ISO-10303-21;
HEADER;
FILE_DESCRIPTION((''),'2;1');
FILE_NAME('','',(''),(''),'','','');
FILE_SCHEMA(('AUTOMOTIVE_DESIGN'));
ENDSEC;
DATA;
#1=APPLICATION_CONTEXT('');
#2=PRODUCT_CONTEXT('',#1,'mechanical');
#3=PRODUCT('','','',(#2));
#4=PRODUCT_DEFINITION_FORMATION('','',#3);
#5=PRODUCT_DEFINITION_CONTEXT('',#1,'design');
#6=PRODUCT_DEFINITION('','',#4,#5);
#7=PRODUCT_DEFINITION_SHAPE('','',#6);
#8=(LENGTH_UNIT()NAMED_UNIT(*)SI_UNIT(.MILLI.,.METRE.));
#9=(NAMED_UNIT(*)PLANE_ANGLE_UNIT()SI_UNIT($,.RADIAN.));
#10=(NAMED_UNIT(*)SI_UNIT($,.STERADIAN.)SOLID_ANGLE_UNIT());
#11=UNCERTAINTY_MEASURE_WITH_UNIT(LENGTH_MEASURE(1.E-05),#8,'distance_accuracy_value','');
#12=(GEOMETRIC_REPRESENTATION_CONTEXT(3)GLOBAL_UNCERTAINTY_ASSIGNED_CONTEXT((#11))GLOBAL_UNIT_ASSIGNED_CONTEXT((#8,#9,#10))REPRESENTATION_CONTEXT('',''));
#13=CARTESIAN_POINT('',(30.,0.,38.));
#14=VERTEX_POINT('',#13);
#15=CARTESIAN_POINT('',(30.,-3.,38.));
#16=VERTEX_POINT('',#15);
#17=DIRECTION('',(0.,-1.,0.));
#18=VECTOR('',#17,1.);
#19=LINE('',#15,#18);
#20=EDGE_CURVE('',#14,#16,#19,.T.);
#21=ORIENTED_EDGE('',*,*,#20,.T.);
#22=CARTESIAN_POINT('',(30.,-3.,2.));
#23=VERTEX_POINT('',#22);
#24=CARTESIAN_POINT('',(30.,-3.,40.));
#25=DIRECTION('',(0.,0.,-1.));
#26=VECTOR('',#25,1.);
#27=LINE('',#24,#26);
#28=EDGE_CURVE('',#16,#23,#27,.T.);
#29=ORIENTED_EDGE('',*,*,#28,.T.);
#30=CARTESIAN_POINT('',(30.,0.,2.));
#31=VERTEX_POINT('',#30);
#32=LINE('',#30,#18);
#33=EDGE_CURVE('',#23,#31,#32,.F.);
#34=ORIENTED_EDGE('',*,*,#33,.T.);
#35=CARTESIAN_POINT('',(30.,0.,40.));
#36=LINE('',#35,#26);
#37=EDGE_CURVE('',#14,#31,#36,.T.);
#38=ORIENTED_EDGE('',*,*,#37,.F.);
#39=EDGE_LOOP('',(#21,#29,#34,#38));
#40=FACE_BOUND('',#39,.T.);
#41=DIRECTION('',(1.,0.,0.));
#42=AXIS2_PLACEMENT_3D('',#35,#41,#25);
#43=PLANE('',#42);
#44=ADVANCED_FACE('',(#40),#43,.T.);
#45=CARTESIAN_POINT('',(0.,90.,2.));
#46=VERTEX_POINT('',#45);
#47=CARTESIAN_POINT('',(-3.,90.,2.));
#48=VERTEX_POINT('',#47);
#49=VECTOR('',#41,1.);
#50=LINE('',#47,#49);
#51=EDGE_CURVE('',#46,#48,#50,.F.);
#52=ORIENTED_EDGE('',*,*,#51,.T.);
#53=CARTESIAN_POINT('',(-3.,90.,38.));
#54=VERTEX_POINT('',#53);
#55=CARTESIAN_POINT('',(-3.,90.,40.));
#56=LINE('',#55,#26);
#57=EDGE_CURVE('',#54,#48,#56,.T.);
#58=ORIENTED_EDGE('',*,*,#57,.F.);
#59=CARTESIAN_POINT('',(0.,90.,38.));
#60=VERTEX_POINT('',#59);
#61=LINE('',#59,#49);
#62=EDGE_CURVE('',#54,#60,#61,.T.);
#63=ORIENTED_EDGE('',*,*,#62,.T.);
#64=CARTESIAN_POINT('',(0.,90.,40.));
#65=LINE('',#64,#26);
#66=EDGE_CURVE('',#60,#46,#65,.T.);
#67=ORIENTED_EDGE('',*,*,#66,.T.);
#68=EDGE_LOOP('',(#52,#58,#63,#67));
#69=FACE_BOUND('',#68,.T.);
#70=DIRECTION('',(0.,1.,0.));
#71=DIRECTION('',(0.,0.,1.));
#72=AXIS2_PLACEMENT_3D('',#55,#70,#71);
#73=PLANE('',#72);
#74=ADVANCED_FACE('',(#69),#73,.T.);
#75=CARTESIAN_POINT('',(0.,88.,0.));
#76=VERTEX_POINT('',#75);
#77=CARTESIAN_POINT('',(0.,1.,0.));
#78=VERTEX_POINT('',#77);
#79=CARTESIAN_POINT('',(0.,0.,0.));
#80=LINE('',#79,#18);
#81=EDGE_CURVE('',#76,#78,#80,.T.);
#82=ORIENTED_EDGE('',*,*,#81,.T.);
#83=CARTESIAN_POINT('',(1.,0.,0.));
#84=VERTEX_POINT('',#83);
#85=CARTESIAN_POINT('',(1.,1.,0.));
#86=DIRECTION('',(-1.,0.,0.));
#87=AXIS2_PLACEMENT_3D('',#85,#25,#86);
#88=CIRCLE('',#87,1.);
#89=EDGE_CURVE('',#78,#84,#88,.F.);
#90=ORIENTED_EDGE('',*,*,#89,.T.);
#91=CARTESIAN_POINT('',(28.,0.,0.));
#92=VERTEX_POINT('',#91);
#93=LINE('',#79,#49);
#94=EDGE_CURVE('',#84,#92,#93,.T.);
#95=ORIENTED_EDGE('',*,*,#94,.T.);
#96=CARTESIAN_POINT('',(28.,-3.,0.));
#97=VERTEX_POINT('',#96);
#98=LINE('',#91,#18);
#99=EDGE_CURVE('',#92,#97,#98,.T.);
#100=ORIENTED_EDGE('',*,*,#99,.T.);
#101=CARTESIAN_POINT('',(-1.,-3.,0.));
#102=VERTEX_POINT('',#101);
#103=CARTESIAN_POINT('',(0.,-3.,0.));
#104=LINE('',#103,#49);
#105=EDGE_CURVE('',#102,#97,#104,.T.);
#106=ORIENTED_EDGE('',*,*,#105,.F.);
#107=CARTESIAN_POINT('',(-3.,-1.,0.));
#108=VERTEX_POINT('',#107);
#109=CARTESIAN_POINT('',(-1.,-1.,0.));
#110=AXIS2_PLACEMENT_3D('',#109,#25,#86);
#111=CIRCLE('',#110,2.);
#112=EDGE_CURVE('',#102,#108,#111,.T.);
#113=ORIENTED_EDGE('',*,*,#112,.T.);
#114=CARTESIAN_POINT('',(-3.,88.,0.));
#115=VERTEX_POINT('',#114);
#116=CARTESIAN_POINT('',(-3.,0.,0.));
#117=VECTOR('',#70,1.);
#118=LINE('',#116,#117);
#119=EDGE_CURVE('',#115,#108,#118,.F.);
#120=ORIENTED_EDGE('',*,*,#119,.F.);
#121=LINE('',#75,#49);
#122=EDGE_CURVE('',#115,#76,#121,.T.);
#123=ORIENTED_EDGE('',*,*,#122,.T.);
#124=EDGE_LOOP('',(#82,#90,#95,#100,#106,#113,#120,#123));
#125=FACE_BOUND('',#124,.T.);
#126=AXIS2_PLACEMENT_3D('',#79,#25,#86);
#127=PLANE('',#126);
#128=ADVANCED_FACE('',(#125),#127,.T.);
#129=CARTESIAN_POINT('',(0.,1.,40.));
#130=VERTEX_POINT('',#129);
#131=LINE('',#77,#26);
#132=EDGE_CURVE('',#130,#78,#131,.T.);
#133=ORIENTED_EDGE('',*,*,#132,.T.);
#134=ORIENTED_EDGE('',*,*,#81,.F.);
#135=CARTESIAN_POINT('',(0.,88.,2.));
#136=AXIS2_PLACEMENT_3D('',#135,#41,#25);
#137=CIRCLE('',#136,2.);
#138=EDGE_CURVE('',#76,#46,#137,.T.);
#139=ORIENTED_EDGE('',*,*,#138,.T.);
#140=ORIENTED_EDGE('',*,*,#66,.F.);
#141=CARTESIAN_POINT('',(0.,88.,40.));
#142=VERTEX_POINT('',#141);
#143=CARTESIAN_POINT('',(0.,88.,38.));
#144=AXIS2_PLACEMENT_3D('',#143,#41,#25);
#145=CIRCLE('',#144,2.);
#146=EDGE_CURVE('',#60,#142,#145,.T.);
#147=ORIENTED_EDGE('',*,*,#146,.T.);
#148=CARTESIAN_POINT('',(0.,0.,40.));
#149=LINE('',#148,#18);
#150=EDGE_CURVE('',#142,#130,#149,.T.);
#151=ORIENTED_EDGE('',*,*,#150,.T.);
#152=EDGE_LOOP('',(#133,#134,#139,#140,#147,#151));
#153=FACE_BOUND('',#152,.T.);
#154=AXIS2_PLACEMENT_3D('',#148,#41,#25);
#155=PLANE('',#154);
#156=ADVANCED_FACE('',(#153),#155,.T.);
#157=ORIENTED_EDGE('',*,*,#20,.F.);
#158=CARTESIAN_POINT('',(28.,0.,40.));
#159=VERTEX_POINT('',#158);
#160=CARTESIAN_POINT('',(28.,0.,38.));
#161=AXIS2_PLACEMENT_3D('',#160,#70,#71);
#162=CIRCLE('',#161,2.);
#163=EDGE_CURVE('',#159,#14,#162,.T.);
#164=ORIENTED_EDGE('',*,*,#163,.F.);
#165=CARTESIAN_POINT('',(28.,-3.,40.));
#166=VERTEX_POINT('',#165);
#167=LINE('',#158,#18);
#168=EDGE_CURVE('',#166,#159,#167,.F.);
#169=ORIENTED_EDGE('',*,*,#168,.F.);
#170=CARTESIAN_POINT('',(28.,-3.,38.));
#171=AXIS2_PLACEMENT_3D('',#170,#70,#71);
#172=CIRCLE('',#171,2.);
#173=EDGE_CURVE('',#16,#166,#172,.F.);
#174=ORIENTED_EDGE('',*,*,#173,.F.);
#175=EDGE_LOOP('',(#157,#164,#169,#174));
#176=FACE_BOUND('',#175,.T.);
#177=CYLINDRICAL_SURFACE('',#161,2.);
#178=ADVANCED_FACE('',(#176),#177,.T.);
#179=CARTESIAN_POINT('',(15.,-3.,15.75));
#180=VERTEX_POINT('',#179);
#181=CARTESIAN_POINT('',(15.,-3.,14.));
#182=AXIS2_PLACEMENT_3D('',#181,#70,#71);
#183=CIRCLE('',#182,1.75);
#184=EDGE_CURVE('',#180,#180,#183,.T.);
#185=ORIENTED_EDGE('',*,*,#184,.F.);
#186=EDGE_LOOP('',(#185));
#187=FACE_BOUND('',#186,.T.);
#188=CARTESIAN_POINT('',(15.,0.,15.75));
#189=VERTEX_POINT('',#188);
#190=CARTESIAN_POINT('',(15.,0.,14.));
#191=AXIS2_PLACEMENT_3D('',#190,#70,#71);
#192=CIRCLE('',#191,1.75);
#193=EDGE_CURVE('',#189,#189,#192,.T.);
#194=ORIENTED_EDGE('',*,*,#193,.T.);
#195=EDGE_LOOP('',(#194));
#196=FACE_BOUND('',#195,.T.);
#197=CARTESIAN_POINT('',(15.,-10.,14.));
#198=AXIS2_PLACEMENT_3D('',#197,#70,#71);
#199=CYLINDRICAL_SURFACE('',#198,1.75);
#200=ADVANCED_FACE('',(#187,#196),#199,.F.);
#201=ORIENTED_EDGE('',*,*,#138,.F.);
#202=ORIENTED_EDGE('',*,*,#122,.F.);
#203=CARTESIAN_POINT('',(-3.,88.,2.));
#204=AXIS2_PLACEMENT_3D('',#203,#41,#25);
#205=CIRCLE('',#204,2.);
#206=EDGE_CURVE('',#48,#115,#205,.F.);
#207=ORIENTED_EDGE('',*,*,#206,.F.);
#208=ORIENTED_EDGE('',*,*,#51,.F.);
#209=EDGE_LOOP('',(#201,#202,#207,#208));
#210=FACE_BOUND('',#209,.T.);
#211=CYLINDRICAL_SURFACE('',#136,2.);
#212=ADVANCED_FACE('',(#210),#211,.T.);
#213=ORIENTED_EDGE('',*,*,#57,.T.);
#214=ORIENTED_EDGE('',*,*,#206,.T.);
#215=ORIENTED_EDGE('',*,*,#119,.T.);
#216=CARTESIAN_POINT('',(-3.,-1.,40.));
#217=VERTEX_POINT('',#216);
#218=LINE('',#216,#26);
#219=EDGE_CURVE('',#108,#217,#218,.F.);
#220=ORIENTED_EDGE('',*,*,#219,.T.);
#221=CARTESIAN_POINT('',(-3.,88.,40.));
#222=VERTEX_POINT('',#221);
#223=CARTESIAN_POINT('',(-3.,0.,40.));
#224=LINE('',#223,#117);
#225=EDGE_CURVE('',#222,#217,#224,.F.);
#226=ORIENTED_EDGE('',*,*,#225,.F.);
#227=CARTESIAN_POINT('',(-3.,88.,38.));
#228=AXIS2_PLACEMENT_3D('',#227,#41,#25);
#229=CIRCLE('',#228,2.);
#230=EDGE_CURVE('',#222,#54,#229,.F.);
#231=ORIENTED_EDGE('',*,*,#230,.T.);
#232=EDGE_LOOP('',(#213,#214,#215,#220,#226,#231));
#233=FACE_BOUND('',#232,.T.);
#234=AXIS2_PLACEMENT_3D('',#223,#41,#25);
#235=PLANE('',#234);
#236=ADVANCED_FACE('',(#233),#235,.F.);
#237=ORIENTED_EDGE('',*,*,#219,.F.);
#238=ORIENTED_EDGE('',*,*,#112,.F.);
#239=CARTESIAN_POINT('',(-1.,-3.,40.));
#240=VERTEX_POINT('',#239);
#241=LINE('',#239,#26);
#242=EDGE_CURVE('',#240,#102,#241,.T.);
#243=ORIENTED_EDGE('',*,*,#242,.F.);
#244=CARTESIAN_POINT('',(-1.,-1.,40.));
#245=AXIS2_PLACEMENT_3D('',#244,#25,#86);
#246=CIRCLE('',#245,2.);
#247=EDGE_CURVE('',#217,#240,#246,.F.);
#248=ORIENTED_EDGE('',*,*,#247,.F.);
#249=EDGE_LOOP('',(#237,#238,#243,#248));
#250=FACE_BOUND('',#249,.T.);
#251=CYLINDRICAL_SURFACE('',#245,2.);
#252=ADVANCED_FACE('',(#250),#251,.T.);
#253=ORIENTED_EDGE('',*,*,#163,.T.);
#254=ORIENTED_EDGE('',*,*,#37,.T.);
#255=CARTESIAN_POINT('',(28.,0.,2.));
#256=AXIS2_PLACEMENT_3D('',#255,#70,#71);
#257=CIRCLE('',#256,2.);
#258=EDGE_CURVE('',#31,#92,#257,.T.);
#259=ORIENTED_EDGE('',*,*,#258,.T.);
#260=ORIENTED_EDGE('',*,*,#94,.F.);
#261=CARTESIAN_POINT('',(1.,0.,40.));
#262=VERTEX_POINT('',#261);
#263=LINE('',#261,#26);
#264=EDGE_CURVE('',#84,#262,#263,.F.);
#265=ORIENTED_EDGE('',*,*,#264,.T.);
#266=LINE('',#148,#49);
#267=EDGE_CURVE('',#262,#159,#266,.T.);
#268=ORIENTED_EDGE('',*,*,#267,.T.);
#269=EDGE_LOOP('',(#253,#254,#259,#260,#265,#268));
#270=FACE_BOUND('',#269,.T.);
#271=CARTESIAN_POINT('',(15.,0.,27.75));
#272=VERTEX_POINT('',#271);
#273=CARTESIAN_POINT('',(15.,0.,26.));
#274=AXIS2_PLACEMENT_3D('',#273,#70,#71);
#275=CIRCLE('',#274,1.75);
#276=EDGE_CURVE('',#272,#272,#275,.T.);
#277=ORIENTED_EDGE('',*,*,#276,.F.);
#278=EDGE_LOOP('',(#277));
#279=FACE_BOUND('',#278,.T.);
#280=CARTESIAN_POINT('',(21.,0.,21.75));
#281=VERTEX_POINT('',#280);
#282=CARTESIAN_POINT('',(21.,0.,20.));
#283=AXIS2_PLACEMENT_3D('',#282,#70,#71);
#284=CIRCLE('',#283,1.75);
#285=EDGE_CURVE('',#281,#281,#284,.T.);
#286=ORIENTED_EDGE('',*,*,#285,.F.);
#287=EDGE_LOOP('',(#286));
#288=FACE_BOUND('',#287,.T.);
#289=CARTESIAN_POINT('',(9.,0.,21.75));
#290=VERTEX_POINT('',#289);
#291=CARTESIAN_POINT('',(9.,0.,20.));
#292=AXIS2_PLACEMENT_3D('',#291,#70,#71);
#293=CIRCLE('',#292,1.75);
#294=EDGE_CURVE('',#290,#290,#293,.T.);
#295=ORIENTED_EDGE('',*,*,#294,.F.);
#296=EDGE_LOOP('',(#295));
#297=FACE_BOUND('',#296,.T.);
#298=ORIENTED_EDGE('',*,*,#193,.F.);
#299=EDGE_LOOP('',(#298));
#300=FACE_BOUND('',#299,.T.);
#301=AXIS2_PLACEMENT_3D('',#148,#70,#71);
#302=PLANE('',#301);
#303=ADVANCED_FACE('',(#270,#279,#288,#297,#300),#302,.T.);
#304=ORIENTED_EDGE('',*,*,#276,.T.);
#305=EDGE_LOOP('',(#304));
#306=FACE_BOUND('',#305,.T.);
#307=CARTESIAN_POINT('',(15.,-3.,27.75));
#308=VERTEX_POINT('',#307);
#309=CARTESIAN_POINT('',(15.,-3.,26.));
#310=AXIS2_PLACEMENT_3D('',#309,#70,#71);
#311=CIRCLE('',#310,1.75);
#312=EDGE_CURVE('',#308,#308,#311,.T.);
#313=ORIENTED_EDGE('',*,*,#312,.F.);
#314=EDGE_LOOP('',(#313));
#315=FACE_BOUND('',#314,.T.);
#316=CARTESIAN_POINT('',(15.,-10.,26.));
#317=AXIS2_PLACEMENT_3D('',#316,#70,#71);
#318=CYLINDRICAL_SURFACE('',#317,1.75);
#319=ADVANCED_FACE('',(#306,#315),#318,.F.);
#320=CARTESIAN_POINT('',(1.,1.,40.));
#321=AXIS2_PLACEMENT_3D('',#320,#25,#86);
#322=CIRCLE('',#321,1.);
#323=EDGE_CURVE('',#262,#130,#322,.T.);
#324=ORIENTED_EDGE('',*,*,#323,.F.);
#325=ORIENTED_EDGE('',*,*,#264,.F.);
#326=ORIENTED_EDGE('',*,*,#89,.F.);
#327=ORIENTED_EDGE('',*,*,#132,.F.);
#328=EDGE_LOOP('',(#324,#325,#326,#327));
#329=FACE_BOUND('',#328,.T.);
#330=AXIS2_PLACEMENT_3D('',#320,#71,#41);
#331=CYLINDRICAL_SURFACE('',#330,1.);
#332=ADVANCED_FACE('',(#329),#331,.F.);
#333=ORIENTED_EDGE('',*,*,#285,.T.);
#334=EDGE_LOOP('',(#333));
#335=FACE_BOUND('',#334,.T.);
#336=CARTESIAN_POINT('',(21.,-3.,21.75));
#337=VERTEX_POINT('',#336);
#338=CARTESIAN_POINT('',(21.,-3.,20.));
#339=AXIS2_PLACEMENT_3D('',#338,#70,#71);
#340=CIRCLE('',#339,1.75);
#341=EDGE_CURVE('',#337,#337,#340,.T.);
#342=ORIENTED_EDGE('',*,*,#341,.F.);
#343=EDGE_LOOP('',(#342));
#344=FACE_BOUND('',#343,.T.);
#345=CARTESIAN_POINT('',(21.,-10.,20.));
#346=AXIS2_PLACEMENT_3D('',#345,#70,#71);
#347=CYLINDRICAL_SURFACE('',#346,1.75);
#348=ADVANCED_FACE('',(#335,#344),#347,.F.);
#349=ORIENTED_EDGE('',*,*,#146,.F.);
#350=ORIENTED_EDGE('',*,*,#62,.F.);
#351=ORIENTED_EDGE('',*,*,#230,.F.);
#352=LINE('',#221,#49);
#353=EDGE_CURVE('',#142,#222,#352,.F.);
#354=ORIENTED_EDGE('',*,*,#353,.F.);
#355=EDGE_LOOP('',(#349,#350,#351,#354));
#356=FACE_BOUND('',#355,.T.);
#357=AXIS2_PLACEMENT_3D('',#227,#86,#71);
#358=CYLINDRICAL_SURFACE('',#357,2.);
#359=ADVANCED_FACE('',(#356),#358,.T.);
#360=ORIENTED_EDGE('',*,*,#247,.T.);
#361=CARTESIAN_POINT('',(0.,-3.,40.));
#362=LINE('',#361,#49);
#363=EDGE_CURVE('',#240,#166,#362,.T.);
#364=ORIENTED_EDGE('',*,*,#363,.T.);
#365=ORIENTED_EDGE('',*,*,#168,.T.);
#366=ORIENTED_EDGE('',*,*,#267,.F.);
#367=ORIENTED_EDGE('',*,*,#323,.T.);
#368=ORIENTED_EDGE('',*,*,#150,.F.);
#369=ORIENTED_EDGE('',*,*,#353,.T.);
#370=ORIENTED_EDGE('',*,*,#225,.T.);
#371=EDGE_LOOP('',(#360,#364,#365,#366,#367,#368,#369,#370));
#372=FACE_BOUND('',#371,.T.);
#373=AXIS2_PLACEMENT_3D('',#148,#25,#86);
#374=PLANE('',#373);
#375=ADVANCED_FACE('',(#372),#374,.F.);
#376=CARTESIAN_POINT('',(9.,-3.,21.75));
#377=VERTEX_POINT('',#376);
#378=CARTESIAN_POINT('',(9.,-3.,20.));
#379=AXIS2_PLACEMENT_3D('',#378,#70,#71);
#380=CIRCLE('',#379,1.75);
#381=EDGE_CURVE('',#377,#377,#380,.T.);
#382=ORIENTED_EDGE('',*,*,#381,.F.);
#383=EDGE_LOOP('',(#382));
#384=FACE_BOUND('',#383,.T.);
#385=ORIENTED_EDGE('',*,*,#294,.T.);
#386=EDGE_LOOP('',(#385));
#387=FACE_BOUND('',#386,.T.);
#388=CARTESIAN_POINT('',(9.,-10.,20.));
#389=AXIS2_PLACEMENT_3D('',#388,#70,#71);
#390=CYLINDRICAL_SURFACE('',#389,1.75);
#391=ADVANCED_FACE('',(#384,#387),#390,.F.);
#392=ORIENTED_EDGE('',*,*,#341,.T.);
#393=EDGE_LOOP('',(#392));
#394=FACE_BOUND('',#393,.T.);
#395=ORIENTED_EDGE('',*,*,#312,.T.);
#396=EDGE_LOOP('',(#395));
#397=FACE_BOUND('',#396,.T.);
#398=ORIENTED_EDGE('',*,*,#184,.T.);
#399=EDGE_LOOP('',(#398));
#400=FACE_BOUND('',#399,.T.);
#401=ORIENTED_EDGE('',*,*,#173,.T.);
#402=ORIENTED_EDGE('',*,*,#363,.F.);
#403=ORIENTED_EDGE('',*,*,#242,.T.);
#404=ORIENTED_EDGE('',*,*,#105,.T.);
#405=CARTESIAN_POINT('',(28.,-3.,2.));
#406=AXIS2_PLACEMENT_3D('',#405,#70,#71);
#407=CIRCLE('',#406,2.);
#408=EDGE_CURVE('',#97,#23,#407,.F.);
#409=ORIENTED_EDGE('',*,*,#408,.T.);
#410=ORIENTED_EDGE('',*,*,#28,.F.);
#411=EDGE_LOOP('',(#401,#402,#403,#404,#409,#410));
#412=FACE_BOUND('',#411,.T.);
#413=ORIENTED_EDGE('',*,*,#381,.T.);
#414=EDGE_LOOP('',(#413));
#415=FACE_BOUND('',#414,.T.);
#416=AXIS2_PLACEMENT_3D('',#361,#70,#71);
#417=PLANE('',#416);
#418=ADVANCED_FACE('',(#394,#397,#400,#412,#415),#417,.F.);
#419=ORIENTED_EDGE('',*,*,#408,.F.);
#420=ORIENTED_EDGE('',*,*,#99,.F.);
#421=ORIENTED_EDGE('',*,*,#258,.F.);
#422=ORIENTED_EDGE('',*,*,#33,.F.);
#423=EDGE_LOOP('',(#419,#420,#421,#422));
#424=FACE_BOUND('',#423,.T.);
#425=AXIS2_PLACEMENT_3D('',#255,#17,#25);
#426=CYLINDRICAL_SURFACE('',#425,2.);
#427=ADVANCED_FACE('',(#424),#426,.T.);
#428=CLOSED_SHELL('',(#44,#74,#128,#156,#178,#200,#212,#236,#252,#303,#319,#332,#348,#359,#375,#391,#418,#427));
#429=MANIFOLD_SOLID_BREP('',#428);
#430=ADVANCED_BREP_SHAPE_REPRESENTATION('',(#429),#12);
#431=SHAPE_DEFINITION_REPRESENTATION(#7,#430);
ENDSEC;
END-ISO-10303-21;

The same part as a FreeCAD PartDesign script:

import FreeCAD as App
import Part
import Sketcher
from FreeCAD import Vector
Q = App.Units.Quantity


def edges_at(feature, points):
    """Names of the edges that pass closest to the given points."""
    edges = feature.Shape.Edges
    near = lambda p: min(range(len(edges)), key=lambda i: edges[i].distToShape(Part.Vertex(*p))[0])
    return sorted({f"Edge{near(p) + 1}" for p in points})


def add_polygon(sketch, points):
    """Adds a closed chain of lines whose ends are joined by coincident constraints."""
    first, n = sketch.GeometryCount, len(points)
    for a, b in zip(points, points[1:] + points[:1]):
        sketch.addGeometry(Part.LineSegment(App.Vector(*a, 0), App.Vector(*b, 0)), False)
    for i in range(n):
        sketch.addConstraint(Sketcher.Constraint("Coincident", first + i, 2, first + (i + 1) % n, 1))

doc = App.newDocument("Part")
params = doc.addObject("Spreadsheet::Sheet", "Params")
for row, (alias, value) in enumerate([
    ("sketch1_width", "30 mm"),
    ("sketch1_width2", "3 mm"),
    ("sketch1_height", "90 mm"),
    ("pad1_length", "40 mm"),
    ("fillet_radius", "1 mm"),
    ("fillet2_radius", "2 mm"),
    ("fillet3_radius", "2 mm"),
    ("fillet4_radius", "2 mm"),
    ("fillet5_radius", "2 mm"),
    ("fillet6_radius", "2 mm"),
    ("sketch2_diameter", "3.5 mm"),
    ("pocket1_length", "10 mm"),
], start=1):
    params.set(f"A{row}", alias)
    params.set(f"B{row}", "=" + value)
    params.setAlias(f"B{row}", alias)

body = doc.addObject("PartDesign::Body", "Body")

sketch1 = doc.addObject("Sketcher::SketchObject", "Sketch")
body.addObject(sketch1)
sketch1.AttachmentSupport = (doc.XY_Plane, [""])
sketch1.MapMode = "FlatFace"
add_polygon(sketch1, [(30, 0), (0, 0), (0, 90), (-3, 90), (-3, -3), (30, -3)])
sketch1.addConstraint(Sketcher.Constraint("Horizontal", 0))
sketch1.addConstraint(Sketcher.Constraint("Vertical", 1))
sketch1.addConstraint(Sketcher.Constraint("Horizontal", 2))
sketch1.addConstraint(Sketcher.Constraint("Vertical", 3))
sketch1.addConstraint(Sketcher.Constraint("Horizontal", 4))
sketch1.addConstraint(Sketcher.Constraint("Vertical", 5))
sketch1.addConstraint(Sketcher.Constraint("Coincident", 0, 2, -1, 1))
sketch1.addConstraint(Sketcher.Constraint("Equal", 2, 5))
sketch1.addConstraint(Sketcher.Constraint("DistanceX", 0, 2, 0, 1, Q("30 mm")))
sketch1.addConstraint(Sketcher.Constraint("DistanceX", 2, 2, 2, 1, Q("3 mm")))
sketch1.addConstraint(Sketcher.Constraint("DistanceY", 1, 1, 1, 2, Q("90 mm")))
sketch1.setExpression("Constraints[14]", "Params.sketch1_width")
sketch1.setExpression("Constraints[15]", "Params.sketch1_width2")
sketch1.setExpression("Constraints[16]", "Params.sketch1_height")
pad1 = doc.addObject("PartDesign::Pad", "Pad")
body.addObject(pad1)
pad1.Profile = sketch1
pad1.setExpression("Length", "Params.pad1_length")
doc.recompute()

fillet = doc.addObject("PartDesign::Fillet", "Fillet")
body.addObject(fillet)
fillet.Base = (pad1, edges_at(pad1, [(0, 0, 20)]))
fillet.setExpression("Radius", "Params.fillet_radius")
doc.recompute()

fillet2 = doc.addObject("PartDesign::Fillet", "Fillet001")
body.addObject(fillet2)
fillet2.Base = (fillet, edges_at(fillet, [(-3, -3, 20)]))
fillet2.setExpression("Radius", "Params.fillet2_radius")
doc.recompute()

fillet3 = doc.addObject("PartDesign::Fillet", "Fillet002")
body.addObject(fillet3)
fillet3.Base = (fillet2, edges_at(fillet2, [(-1.5, 90, 40)]))
fillet3.setExpression("Radius", "Params.fillet3_radius")
doc.recompute()

fillet4 = doc.addObject("PartDesign::Fillet", "Fillet003")
body.addObject(fillet4)
fillet4.Base = (fillet3, edges_at(fillet3, [(-1.5, 90, 0)]))
fillet4.setExpression("Radius", "Params.fillet4_radius")
doc.recompute()

fillet5 = doc.addObject("PartDesign::Fillet", "Fillet004")
body.addObject(fillet5)
fillet5.Base = (fillet4, edges_at(fillet4, [(30, -1.5, 40)]))
fillet5.setExpression("Radius", "Params.fillet5_radius")
doc.recompute()

fillet6 = doc.addObject("PartDesign::Fillet", "Fillet005")
body.addObject(fillet6)
fillet6.Base = (fillet5, edges_at(fillet5, [(30, -1.5, 0)]))
fillet6.setExpression("Radius", "Params.fillet6_radius")

sketch2 = doc.addObject("Sketcher::SketchObject", "Sketch001")
body.addObject(sketch2)
sketch2.AttachmentSupport = (doc.XZ_Plane, [""])
sketch2.MapMode = "FlatFace"
sketch2.addGeometry(Part.Circle(Vector(15, 14, 0), Vector(0, 0, 1), 1.75), False)
sketch2.addGeometry(Part.Circle(Vector(15, 26, 0), Vector(0, 0, 1), 1.75), False)
sketch2.addGeometry(Part.Circle(Vector(21, 20, 0), Vector(0, 0, 1), 1.75), False)
sketch2.addGeometry(Part.Circle(Vector(9, 20, 0), Vector(0, 0, 1), 1.75), False)
sketch2.addConstraint(Sketcher.Constraint("Equal", 0, 1))
sketch2.addConstraint(Sketcher.Constraint("Equal", 1, 2))
sketch2.addConstraint(Sketcher.Constraint("Equal", 2, 3))
sketch2.addConstraint(Sketcher.Constraint("Horizontal", 2, 3, 3, 3))
sketch2.addConstraint(Sketcher.Constraint("Vertical", 0, 3, 1, 3))
sketch2.addConstraint(Sketcher.Constraint("Diameter", 0, Q("3.5 mm")))
sketch2.addConstraint(Sketcher.Constraint("DistanceX", -1, 1, 0, 3, Q("15 mm")))
sketch2.addConstraint(Sketcher.Constraint("DistanceY", -1, 1, 0, 3, Q("14 mm")))
sketch2.addConstraint(Sketcher.Constraint("DistanceY", -1, 1, 1, 3, Q("26 mm")))
sketch2.addConstraint(Sketcher.Constraint("DistanceX", -1, 1, 2, 3, Q("21 mm")))
sketch2.addConstraint(Sketcher.Constraint("DistanceY", -1, 1, 2, 3, Q("20 mm")))
sketch2.addConstraint(Sketcher.Constraint("DistanceX", -1, 1, 3, 3, Q("9 mm")))
sketch2.setExpression("Constraints[5]", "Params.sketch2_diameter")
pocket1 = doc.addObject("PartDesign::Pocket", "Pocket")
body.addObject(pocket1)
pocket1.Profile = sketch2
pocket1.setExpression("Length", "Params.pocket1_length")
pocket1.Reversed = True

doc.recompute()
